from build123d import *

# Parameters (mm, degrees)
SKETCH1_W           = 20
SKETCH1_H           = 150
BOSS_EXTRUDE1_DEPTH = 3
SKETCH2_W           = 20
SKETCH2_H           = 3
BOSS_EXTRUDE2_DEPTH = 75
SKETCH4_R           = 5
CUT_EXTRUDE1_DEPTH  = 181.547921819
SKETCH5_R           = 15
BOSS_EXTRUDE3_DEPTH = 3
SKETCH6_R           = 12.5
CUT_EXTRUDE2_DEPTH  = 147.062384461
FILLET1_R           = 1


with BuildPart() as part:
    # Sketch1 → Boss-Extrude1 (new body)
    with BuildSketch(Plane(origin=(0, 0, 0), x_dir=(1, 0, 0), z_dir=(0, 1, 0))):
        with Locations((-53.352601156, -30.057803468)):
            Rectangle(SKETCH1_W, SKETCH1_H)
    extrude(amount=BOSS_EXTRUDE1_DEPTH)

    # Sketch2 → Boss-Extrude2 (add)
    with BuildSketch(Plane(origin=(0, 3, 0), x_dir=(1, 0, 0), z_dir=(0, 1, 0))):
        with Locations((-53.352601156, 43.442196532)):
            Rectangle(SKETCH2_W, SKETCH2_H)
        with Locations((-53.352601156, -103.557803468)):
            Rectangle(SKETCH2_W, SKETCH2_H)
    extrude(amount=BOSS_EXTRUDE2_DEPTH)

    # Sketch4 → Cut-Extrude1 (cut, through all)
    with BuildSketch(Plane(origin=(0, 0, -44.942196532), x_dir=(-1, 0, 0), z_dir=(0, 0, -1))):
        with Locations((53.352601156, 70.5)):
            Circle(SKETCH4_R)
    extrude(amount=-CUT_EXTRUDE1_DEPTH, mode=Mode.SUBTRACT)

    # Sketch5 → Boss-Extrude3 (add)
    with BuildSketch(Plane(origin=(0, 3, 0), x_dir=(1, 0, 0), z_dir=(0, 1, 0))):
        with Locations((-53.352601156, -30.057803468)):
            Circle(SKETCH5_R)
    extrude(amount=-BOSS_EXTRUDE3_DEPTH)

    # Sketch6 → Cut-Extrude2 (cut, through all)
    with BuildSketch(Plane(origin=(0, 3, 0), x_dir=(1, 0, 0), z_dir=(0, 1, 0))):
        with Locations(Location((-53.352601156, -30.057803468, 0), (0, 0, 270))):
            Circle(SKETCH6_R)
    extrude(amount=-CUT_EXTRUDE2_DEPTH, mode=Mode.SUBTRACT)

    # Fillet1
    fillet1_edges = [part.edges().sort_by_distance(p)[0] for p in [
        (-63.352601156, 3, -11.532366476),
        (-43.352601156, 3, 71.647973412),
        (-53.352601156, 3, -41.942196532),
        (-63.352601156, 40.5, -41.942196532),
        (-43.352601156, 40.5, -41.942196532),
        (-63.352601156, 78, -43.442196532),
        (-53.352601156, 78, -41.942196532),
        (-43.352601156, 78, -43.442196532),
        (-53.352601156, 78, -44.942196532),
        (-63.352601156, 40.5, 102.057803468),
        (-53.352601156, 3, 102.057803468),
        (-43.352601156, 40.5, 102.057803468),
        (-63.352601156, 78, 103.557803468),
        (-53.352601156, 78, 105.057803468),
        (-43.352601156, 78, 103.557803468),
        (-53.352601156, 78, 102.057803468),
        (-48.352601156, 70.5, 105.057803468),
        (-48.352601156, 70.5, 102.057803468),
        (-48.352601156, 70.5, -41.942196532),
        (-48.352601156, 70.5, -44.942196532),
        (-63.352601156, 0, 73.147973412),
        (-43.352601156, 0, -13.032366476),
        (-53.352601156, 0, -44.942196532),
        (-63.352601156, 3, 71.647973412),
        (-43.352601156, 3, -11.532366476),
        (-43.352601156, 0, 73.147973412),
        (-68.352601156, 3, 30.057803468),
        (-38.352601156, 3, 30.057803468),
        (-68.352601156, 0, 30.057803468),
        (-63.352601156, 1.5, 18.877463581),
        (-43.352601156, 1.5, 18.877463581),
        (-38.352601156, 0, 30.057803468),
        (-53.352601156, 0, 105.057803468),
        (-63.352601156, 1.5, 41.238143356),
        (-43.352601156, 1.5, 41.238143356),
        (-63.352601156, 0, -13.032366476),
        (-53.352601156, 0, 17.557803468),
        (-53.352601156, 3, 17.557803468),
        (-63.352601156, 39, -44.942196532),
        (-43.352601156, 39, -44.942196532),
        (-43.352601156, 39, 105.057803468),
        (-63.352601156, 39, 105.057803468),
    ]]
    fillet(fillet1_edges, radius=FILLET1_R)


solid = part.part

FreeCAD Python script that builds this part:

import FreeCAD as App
import Part
import Sketcher
from FreeCAD import Vector
Q = App.Units.Quantity

doc = App.newDocument("Part")
body = doc.addObject("PartDesign::Body", "Body")

# Sketch on XZ plane
sketch1 = body.newObject("Sketcher::SketchObject", "Sketch")
sketch1.AttachmentSupport = (doc.getObject("XZ_Plane"), [""])
sketch1.MapMode = "FlatFace"
sketch1.addGeometry([
    Part.LineSegment(Vector(-63, -45, 0), Vector(-63, 105, 0)),
    Part.LineSegment(Vector(-63, 105, 0), Vector(-43, 105, 0)),
    Part.LineSegment(Vector(-43, 105, 0), Vector(-43, -45, 0)),
    Part.LineSegment(Vector(-43, -45, 0), Vector(-63, -45, 0)),
], False)
sketch1.addConstraint([
    Sketcher.Constraint("Coincident", 0, 2, 1, 1),
    Sketcher.Constraint("Coincident", 1, 2, 2, 1),
    Sketcher.Constraint("Coincident", 2, 2, 3, 1),
    Sketcher.Constraint("Coincident", 3, 2, 0, 1),
    Sketcher.Constraint("Vertical", 0),
    Sketcher.Constraint("Horizontal", 1),
    Sketcher.Constraint("Vertical", 2),
    Sketcher.Constraint("Horizontal", 3),
    Sketcher.Constraint("DistanceX", 1, 1, 1, 2, Q("20 mm")),
    Sketcher.Constraint("DistanceY", 0, 1, 0, 2, Q("150 mm")),
    Sketcher.Constraint("DistanceX", 0, 2, -1, 1, Q("63.352601 mm")),
    Sketcher.Constraint("DistanceY", -1, 1, 0, 2, Q("105.057803 mm")),
])
pad1 = body.newObject("PartDesign::Pad", "Pad")
pad1.Profile = sketch1
pad1.Length = 3
pad1.Reversed = True

# Sketch on XZ plane
sketch2 = body.newObject("Sketcher::SketchObject", "Sketch001")
sketch2.AttachmentSupport = (doc.getObject("XZ_Plane"), [""])
sketch2.MapMode = "FlatFace"
sketch2.AttachmentOffset = App.Placement(Vector(0, 0, -3), App.Rotation())
sketch2.addGeometry([
    Part.LineSegment(Vector(-63.4, -44.9, 0), Vector(-63.4, -41.9, 0)),  # 0
    Part.LineSegment(Vector(-63.4, -41.9, 0), Vector(-43.4, -41.9, 0)),  # 1
    Part.LineSegment(Vector(-43.4, -41.9, 0), Vector(-43.4, -44.9, 0)),  # 2
    Part.LineSegment(Vector(-43.4, -44.9, 0), Vector(-63.4, -44.9, 0)),  # 3
    Part.LineSegment(Vector(-63.4, 102.1, 0), Vector(-63.4, 105.1, 0)),  # 4
    Part.LineSegment(Vector(-63.4, 105.1, 0), Vector(-43.4, 105.1, 0)),  # 5
    Part.LineSegment(Vector(-43.4, 105.1, 0), Vector(-43.4, 102.1, 0)),  # 6
    Part.LineSegment(Vector(-43.4, 102.1, 0), Vector(-63.4, 102.1, 0)),  # 7
], False)
sketch2.addConstraint([
    Sketcher.Constraint("Coincident", 0, 2, 1, 1),
    Sketcher.Constraint("Coincident", 1, 2, 2, 1),
    Sketcher.Constraint("Coincident", 2, 2, 3, 1),
    Sketcher.Constraint("Coincident", 3, 2, 0, 1),
    Sketcher.Constraint("Coincident", 4, 2, 5, 1),
    Sketcher.Constraint("Coincident", 5, 2, 6, 1),
    Sketcher.Constraint("Coincident", 6, 2, 7, 1),
    Sketcher.Constraint("Coincident", 7, 2, 4, 1),
    Sketcher.Constraint("Vertical", 0),
    Sketcher.Constraint("Horizontal", 1),
    Sketcher.Constraint("Vertical", 2),
    Sketcher.Constraint("Horizontal", 3),
    Sketcher.Constraint("Vertical", 4),
    Sketcher.Constraint("Horizontal", 5),
    Sketcher.Constraint("Vertical", 6),
    Sketcher.Constraint("Horizontal", 7),
    Sketcher.Constraint("Vertical", 3, 2, 4, 2),
    Sketcher.Constraint("Vertical", 2, 2, 5, 2),
    Sketcher.Constraint("Equal", 2, 4),
    Sketcher.Constraint("DistanceX", 1, 1, 1, 2, Q("20 mm")),
    Sketcher.Constraint("DistanceY", 0, 1, 0, 2, Q("3 mm")),
    Sketcher.Constraint("DistanceY", 0, 2, 4, 2, Q("147 mm")),
    Sketcher.Constraint("DistanceX", 0, 2, -1, 1, Q("63.352601 mm")),
    Sketcher.Constraint("DistanceY", 0, 2, -1, 1, Q("41.942197 mm")),
])
pad2 = body.newObject("PartDesign::Pad", "Pad001")
pad2.Profile = sketch2
pad2.Length = 75
pad2.Reversed = True

# Sketch on XY plane
sketch3 = body.newObject("Sketcher::SketchObject", "Sketch002")
sketch3.AttachmentSupport = (doc.getObject("XY_Plane"), [""])
sketch3.MapMode = "FlatFace"
sketch3.AttachmentOffset = App.Placement(Vector(0, 0, -44.942197), App.Rotation())
sketch3.addGeometry(Part.Circle(Vector(-53, 70, 0), Vector(0, 0, 1), 5), False)
sketch3.addConstraint([
    Sketcher.Constraint("Diameter", 0, Q("10 mm")),
    Sketcher.Constraint("DistanceY", -1, 1, 0, 3, Q("70.5 mm")),
    Sketcher.Constraint("DistanceX", 0, 3, -1, 1, Q("53.352601 mm")),
])
pocket1 = body.newObject("PartDesign::Pocket", "Pocket")
pocket1.Profile = sketch3
pocket1.Type = "ThroughAll"
pocket1.Reversed = True

# Sketch on XZ plane
sketch4 = body.newObject("Sketcher::SketchObject", "Sketch003")
sketch4.AttachmentSupport = (doc.getObject("XZ_Plane"), [""])
sketch4.MapMode = "FlatFace"
sketch4.AttachmentOffset = App.Placement(Vector(0, 0, -3), App.Rotation())
sketch4.addGeometry(Part.Circle(Vector(-53, 30, 0), Vector(0, 0, 1), 15), False)
sketch4.addConstraint([
    Sketcher.Constraint("Diameter", 0, Q("30 mm")),
    Sketcher.Constraint("DistanceX", 0, 3, -1, 1, Q("53.352601 mm")),
    Sketcher.Constraint("DistanceY", -1, 1, 0, 3, Q("30.057803 mm")),
])
pad3 = body.newObject("PartDesign::Pad", "Pad002")
pad3.Profile = sketch4
pad3.Length = 3

# Sketch on XZ plane
sketch5 = body.newObject("Sketcher::SketchObject", "Sketch004")
sketch5.AttachmentSupport = (doc.getObject("XZ_Plane"), [""])
sketch5.MapMode = "FlatFace"
sketch5.AttachmentOffset = App.Placement(Vector(0, 0, -3), App.Rotation())
sketch5.addGeometry(Part.Circle(Vector(-53, 30, 0), Vector(0, 0, 1), 12), False)
sketch5.addConstraint([
    Sketcher.Constraint("Diameter", 0, Q("25 mm")),
    Sketcher.Constraint("DistanceX", 0, 3, -1, 1, Q("53.352601 mm")),
    Sketcher.Constraint("DistanceY", -1, 1, 0, 3, Q("30.057803 mm")),
])
pocket2 = body.newObject("PartDesign::Pocket", "Pocket001")
pocket2.Profile = sketch5
pocket2.Type = "ThroughAll"
pocket2.Reversed = True
doc.recompute()

fillet = body.newObject("PartDesign::Fillet", "Fillet")
fillet.Base = (pocket2, ["Edge1"])
fillet.UseAllEdges = True
fillet.Radius = 1

doc.recompute()
